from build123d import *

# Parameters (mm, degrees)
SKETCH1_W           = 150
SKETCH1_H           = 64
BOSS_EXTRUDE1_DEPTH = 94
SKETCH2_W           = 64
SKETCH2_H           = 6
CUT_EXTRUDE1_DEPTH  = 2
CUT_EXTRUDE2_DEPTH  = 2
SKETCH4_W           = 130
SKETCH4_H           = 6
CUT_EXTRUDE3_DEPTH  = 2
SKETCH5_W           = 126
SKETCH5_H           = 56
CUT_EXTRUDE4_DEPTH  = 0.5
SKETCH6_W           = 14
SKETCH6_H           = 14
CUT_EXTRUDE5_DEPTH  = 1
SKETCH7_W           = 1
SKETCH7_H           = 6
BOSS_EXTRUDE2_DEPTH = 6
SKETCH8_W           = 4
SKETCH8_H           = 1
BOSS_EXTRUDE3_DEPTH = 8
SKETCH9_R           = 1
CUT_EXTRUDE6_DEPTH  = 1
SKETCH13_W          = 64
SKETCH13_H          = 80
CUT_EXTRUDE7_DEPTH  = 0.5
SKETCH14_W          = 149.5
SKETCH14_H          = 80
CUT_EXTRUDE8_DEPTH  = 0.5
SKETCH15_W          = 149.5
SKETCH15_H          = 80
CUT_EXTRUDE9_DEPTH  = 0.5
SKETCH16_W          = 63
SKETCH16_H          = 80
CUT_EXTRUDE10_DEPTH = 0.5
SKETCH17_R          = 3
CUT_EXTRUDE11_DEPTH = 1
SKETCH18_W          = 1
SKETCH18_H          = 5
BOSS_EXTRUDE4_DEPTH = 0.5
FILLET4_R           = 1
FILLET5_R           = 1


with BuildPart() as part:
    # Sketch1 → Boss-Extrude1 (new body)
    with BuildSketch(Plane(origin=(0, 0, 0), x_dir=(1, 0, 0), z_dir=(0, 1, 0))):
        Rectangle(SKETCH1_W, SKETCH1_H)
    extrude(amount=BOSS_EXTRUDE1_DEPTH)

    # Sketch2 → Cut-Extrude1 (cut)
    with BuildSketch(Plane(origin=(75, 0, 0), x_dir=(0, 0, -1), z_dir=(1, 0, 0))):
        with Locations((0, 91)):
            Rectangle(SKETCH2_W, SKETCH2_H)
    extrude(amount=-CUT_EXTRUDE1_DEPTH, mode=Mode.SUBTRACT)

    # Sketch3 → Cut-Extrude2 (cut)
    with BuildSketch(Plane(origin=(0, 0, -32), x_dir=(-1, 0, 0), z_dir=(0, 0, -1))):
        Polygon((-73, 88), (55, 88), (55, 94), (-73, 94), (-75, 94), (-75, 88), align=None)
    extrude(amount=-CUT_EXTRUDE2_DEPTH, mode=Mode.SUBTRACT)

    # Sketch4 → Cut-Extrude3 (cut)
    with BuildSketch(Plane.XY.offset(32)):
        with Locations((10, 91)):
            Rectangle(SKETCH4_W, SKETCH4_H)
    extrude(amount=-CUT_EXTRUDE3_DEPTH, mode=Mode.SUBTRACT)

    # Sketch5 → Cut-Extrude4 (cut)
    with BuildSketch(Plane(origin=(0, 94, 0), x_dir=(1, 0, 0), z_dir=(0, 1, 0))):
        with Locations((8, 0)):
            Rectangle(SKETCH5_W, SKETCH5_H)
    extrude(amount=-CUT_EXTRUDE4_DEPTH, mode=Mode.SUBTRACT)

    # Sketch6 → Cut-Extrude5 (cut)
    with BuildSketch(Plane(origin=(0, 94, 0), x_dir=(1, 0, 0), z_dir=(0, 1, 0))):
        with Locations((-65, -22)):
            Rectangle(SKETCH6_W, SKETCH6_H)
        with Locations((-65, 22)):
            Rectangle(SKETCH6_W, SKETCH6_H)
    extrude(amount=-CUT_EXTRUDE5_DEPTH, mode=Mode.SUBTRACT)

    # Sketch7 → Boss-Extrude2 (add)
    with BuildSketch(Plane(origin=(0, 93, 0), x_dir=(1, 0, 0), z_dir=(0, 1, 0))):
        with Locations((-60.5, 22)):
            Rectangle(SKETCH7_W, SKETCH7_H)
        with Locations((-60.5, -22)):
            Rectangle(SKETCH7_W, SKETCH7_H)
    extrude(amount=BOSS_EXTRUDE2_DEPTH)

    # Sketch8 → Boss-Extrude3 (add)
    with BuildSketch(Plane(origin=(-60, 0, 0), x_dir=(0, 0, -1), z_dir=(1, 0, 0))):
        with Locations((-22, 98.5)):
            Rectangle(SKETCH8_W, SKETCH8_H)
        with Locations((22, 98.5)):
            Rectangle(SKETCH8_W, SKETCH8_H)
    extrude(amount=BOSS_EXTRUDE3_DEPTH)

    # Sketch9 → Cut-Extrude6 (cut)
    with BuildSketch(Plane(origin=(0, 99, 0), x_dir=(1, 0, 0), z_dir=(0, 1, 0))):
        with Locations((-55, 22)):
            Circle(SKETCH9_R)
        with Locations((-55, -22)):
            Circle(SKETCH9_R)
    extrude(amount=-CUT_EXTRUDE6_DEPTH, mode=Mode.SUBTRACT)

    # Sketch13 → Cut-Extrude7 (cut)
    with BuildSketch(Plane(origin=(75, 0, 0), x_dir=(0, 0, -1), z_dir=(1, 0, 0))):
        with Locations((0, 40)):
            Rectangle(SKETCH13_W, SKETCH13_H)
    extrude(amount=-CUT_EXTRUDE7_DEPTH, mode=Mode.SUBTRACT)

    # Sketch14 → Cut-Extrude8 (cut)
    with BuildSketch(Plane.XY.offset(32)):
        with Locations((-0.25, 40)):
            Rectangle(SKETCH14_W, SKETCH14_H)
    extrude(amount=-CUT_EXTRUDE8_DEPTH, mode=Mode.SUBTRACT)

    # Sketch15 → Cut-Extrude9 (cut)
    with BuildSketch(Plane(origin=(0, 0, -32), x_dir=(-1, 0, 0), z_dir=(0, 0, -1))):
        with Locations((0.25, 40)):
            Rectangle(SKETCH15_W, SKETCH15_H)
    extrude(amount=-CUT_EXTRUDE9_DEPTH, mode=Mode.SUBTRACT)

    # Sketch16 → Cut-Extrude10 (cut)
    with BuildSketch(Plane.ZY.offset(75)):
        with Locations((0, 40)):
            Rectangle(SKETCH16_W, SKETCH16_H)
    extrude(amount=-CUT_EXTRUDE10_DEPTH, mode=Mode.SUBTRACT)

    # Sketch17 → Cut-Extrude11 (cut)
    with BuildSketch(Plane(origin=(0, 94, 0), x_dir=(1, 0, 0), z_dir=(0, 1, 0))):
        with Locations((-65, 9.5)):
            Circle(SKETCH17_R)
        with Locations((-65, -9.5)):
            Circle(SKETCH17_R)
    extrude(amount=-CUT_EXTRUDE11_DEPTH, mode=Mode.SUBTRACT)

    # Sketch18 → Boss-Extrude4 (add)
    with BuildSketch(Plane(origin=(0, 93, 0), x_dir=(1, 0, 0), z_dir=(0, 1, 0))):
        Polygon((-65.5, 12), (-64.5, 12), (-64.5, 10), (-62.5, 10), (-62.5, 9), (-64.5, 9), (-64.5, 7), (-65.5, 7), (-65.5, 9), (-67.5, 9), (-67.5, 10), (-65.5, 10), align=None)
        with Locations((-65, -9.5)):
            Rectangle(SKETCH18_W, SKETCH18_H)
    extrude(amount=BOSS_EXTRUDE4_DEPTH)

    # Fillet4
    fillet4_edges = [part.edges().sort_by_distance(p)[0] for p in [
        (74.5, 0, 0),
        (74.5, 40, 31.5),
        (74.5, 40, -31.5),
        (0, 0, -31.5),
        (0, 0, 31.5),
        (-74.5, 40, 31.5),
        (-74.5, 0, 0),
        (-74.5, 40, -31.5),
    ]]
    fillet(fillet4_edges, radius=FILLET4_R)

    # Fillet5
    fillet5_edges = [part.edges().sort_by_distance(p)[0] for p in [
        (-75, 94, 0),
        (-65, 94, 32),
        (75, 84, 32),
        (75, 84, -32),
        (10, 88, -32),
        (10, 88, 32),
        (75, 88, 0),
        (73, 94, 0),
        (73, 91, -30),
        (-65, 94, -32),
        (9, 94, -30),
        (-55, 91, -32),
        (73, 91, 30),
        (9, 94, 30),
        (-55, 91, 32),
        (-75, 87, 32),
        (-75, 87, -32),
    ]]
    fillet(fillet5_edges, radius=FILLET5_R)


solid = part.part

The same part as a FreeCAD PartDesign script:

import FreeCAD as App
import Part
import Sketcher
from FreeCAD import Vector
Q = App.Units.Quantity


def edges_at(feature, points):
    """Names of the edges that pass closest to the given points."""
    edges = feature.Shape.Edges
    near = lambda p: min(range(len(edges)), key=lambda i: edges[i].distToShape(Part.Vertex(*p))[0])
    return sorted({f"Edge{near(p) + 1}" for p in points})


def add_polygon(sketch, points):
    """Adds a closed chain of lines whose ends are joined by coincident constraints."""
    first, n = sketch.GeometryCount, len(points)
    for a, b in zip(points, points[1:] + points[:1]):
        sketch.addGeometry(Part.LineSegment(App.Vector(*a, 0), App.Vector(*b, 0)), False)
    for i in range(n):
        sketch.addConstraint(Sketcher.Constraint("Coincident", first + i, 2, first + (i + 1) % n, 1))

doc = App.newDocument("Part")
body = doc.addObject("PartDesign::Body", "Body")

sketch1 = doc.addObject("Sketcher::SketchObject", "Sketch")
body.addObject(sketch1)
sketch1.AttachmentSupport = (doc.XZ_Plane, [""])
sketch1.MapMode = "FlatFace"
add_polygon(sketch1, [(-75, -32), (-75, 32), (75, 32), (75, -32)])
sketch1.addConstraint([
    Sketcher.Constraint("Vertical", 0),
    Sketcher.Constraint("Horizontal", 1),
    Sketcher.Constraint("Vertical", 2),
    Sketcher.Constraint("Horizontal", 3),
    Sketcher.Constraint("Symmetric", 0, 2, 2, 2, -1, 1),
    Sketcher.Constraint("DistanceX", 1, 1, 1, 2, Q("150 mm")),
    Sketcher.Constraint("DistanceY", 0, 1, 0, 2, Q("64 mm")),
])
pad1 = doc.addObject("PartDesign::Pad", "Pad")
body.addObject(pad1)
pad1.Profile = sketch1
pad1.Length = 94
pad1.Reversed = True

sketch2 = doc.addObject("Sketcher::SketchObject", "Sketch001")
body.addObject(sketch2)
sketch2.AttachmentSupport = (doc.YZ_Plane, [""])
sketch2.MapMode = "FlatFace"
sketch2.AttachmentOffset = App.Placement(Vector(0, 0, 75), App.Rotation())
add_polygon(sketch2, [(94, 32), (88, 32), (88, -32), (94, -32)])
sketch2.addConstraint([
    Sketcher.Constraint("Horizontal", 0),
    Sketcher.Constraint("Vertical", 1),
    Sketcher.Constraint("Horizontal", 2),
    Sketcher.Constraint("Vertical", 3),
    Sketcher.Constraint("DistanceX", 0, 2, 0, 1, Q("6 mm")),
    Sketcher.Constraint("DistanceY", 1, 2, 1, 1, Q("64 mm")),
    Sketcher.Constraint("DistanceX", -1, 1, 0, 2, Q("88 mm")),
    Sketcher.Constraint("DistanceY", -1, 1, 0, 2, Q("32 mm")),
])
pocket1 = doc.addObject("PartDesign::Pocket", "Pocket")
body.addObject(pocket1)
pocket1.Profile = sketch2
pocket1.Length = 2

sketch3 = doc.addObject("Sketcher::SketchObject", "Sketch002")
body.addObject(sketch3)
sketch3.AttachmentSupport = (doc.XY_Plane, [""])
sketch3.MapMode = "FlatFace"
sketch3.AttachmentOffset = App.Placement(Vector(0, 0, -32), App.Rotation())
add_polygon(sketch3, [(-55, 88), (-55, 94), (75, 94), (75, 88)])
sketch3.addConstraint([
    Sketcher.Constraint("Vertical", 0),
    Sketcher.Constraint("Horizontal", 1),
    Sketcher.Constraint("Vertical", 2),
    Sketcher.Constraint("Horizontal", 3),
    Sketcher.Constraint("DistanceX", 1, 1, 1, 2, Q("130 mm")),
    Sketcher.Constraint("DistanceY", 0, 1, 0, 2, Q("6 mm")),
    Sketcher.Constraint("DistanceX", 0, 2, -1, 1, Q("55 mm")),
    Sketcher.Constraint("DistanceY", -1, 1, 0, 2, Q("94 mm")),
])
pocket2 = doc.addObject("PartDesign::Pocket", "Pocket001")
body.addObject(pocket2)
pocket2.Profile = sketch3
pocket2.Length = 2
pocket2.Reversed = True

sketch4 = doc.addObject("Sketcher::SketchObject", "Sketch003")
body.addObject(sketch4)
sketch4.AttachmentSupport = (doc.XY_Plane, [""])
sketch4.MapMode = "FlatFace"
sketch4.AttachmentOffset = App.Placement(Vector(0, 0, 32), App.Rotation())
add_polygon(sketch4, [(-55, 94), (-55, 88), (75, 88), (75, 94)])
sketch4.addConstraint([
    Sketcher.Constraint("Vertical", 0),
    Sketcher.Constraint("Horizontal", 1),
    Sketcher.Constraint("Vertical", 2),
    Sketcher.Constraint("Horizontal", 3),
    Sketcher.Constraint("DistanceX", 1, 1, 1, 2, Q("130 mm")),
    Sketcher.Constraint("DistanceY", 0, 2, 0, 1, Q("6 mm")),
    Sketcher.Constraint("DistanceX", 0, 2, -1, 1, Q("55 mm")),
    Sketcher.Constraint("DistanceY", -1, 1, 0, 2, Q("88 mm")),
])
pocket3 = doc.addObject("PartDesign::Pocket", "Pocket002")
body.addObject(pocket3)
pocket3.Profile = sketch4
pocket3.Length = 2

sketch5 = doc.addObject("Sketcher::SketchObject", "Sketch004")
body.addObject(sketch5)
sketch5.AttachmentSupport = (doc.XZ_Plane, [""])
sketch5.MapMode = "FlatFace"
sketch5.AttachmentOffset = App.Placement(Vector(0, 0, -94), App.Rotation())
add_polygon(sketch5, [(-55, -28), (-55, 28), (71, 28), (71, -28)])
sketch5.addConstraint([
    Sketcher.Constraint("Vertical", 0),
    Sketcher.Constraint("Horizontal", 1),
    Sketcher.Constraint("Vertical", 2),
    Sketcher.Constraint("Horizontal", 3),
    Sketcher.Constraint("DistanceX", 1, 1, 1, 2, Q("126 mm")),
    Sketcher.Constraint("DistanceY", 0, 1, 0, 2, Q("56 mm")),
    Sketcher.Constraint("DistanceX", 0, 2, -1, 1, Q("55 mm")),
    Sketcher.Constraint("DistanceY", -1, 1, 0, 2, Q("28 mm")),
])
pocket4 = doc.addObject("PartDesign::Pocket", "Pocket003")
body.addObject(pocket4)
pocket4.Profile = sketch5
pocket4.Length = 0.5
pocket4.Reversed = True

sketch6 = doc.addObject("Sketcher::SketchObject", "Sketch005")
body.addObject(sketch6)
sketch6.AttachmentSupport = (doc.XZ_Plane, [""])
sketch6.MapMode = "FlatFace"
sketch6.AttachmentOffset = App.Placement(Vector(0, 0, -94), App.Rotation())
add_polygon(sketch6, [(-72, 15), (-72, 29), (-58, 29), (-58, 15)])
add_polygon(sketch6, [(-72, -29), (-72, -15), (-58, -15), (-58, -29)])
sketch6.addConstraint([
    Sketcher.Constraint("Vertical", 0),
    Sketcher.Constraint("Horizontal", 1),
    Sketcher.Constraint("Vertical", 2),
    Sketcher.Constraint("Horizontal", 3),
    Sketcher.Constraint("Vertical", 4),
    Sketcher.Constraint("Horizontal", 5),
    Sketcher.Constraint("Vertical", 6),
    Sketcher.Constraint("Horizontal", 7),
    Sketcher.Constraint("Symmetric", 3, 2, 4, 2, -1),
    Sketcher.Constraint("Symmetric", 1, 2, 6, 2, -1),
    Sketcher.Constraint("Equal", 7, 0),
    Sketcher.Constraint("DistanceX", 1, 1, 1, 2, Q("14 mm")),
    Sketcher.Constraint("DistanceX", 0, 2, -1, 1, Q("72 mm")),
    Sketcher.Constraint("DistanceY", -1, 1, 0, 2, Q("29 mm")),
])
pocket5 = doc.addObject("PartDesign::Pocket", "Pocket004")
body.addObject(pocket5)
pocket5.Profile = sketch6
pocket5.Length = 1
pocket5.Reversed = True

sketch7 = doc.addObject("Sketcher::SketchObject", "Sketch006")
body.addObject(sketch7)
sketch7.AttachmentSupport = (doc.XZ_Plane, [""])
sketch7.MapMode = "FlatFace"
sketch7.AttachmentOffset = App.Placement(Vector(0, 0, -93), App.Rotation())
add_polygon(sketch7, [(-61, -25), (-61, -19), (-60, -19), (-60, -25)])
add_polygon(sketch7, [(-61, 19), (-61, 25), (-60, 25), (-60, 19)])
sketch7.addConstraint([
    Sketcher.Constraint("Vertical", 0),
    Sketcher.Constraint("Horizontal", 1),
    Sketcher.Constraint("Vertical", 2),
    Sketcher.Constraint("Horizontal", 3),
    Sketcher.Constraint("Vertical", 4),
    Sketcher.Constraint("Horizontal", 5),
    Sketcher.Constraint("Vertical", 6),
    Sketcher.Constraint("Horizontal", 7),
    Sketcher.Constraint("Symmetric", 3, 2, 4, 2, -1),
    Sketcher.Constraint("Symmetric", 1, 2, 6, 2, -1),
    Sketcher.Constraint("DistanceX", 1, 1, 1, 2, Q("1 mm")),
    Sketcher.Constraint("DistanceY", 0, 1, 0, 2, Q("6 mm")),
    Sketcher.Constraint("DistanceX", 0, 2, -1, 1, Q("61 mm")),
    Sketcher.Constraint("DistanceY", 0, 2, -1, 1, Q("19 mm")),
])
pad2 = doc.addObject("PartDesign::Pad", "Pad001")
body.addObject(pad2)
pad2.Profile = sketch7
pad2.Length = 6
pad2.Reversed = True

sketch8 = doc.addObject("Sketcher::SketchObject", "Sketch007")
body.addObject(sketch8)
sketch8.AttachmentSupport = (doc.YZ_Plane, [""])
sketch8.MapMode = "FlatFace"
sketch8.AttachmentOffset = App.Placement(Vector(0, 0, -60), App.Rotation())
add_polygon(sketch8, [(99, 24), (98, 24), (98, 20), (99, 20)])
add_polygon(sketch8, [(99, -20), (98, -20), (98, -24), (99, -24)])
sketch8.addConstraint([
    Sketcher.Constraint("Horizontal", 0),
    Sketcher.Constraint("Vertical", 1),
    Sketcher.Constraint("Horizontal", 2),
    Sketcher.Constraint("Vertical", 3),
    Sketcher.Constraint("Horizontal", 4),
    Sketcher.Constraint("Vertical", 5),
    Sketcher.Constraint("Horizontal", 6),
    Sketcher.Constraint("Vertical", 7),
    Sketcher.Constraint("Symmetric", 1, 2, 4, 2, -1),
    Sketcher.Constraint("Symmetric", 3, 2, 6, 2, -1),
    Sketcher.Constraint("DistanceX", 0, 2, 0, 1, Q("1 mm")),
    Sketcher.Constraint("DistanceY", 1, 2, 1, 1, Q("4 mm")),
    Sketcher.Constraint("DistanceX", -1, 1, 0, 2, Q("98 mm")),
    Sketcher.Constraint("DistanceY", -1, 1, 0, 2, Q("24 mm")),
])
pad3 = doc.addObject("PartDesign::Pad", "Pad002")
body.addObject(pad3)
pad3.Profile = sketch8
pad3.Length = 8

sketch9 = doc.addObject("Sketcher::SketchObject", "Sketch008")
body.addObject(sketch9)
sketch9.AttachmentSupport = (doc.XZ_Plane, [""])
sketch9.MapMode = "FlatFace"
sketch9.AttachmentOffset = App.Placement(Vector(0, 0, -99), App.Rotation())
sketch9.addGeometry([
    Part.Circle(Vector(-55, -22, 0), Vector(0, 0, 1), 1),
    Part.Circle(Vector(-55, 22, 0), Vector(0, 0, 1), 1),
], False)
sketch9.addConstraint([
    Sketcher.Constraint("Equal", 0, 1),
    Sketcher.Constraint("Symmetric", 0, 3, 1, 3, -1),
    Sketcher.Constraint("Diameter", 0, Q("2 mm")),
    Sketcher.Constraint("DistanceX", 0, 3, -1, 1, Q("55 mm")),
    Sketcher.Constraint("DistanceY", 0, 3, -1, 1, Q("22 mm")),
])
pocket6 = doc.addObject("PartDesign::Pocket", "Pocket005")
body.addObject(pocket6)
pocket6.Profile = sketch9
pocket6.Length = 1
pocket6.Reversed = True

sketch10 = doc.addObject("Sketcher::SketchObject", "Sketch009")
body.addObject(sketch10)
sketch10.AttachmentSupport = (doc.YZ_Plane, [""])
sketch10.MapMode = "FlatFace"
sketch10.AttachmentOffset = App.Placement(Vector(0, 0, 75), App.Rotation())
add_polygon(sketch10, [(80, 32), (0, 32), (0, -32), (80, -32)])
sketch10.addConstraint([
    Sketcher.Constraint("Horizontal", 0),
    Sketcher.Constraint("Vertical", 1),
    Sketcher.Constraint("Horizontal", 2),
    Sketcher.Constraint("Vertical", 3),
    Sketcher.Constraint("Symmetric", 0, 2, 1, 2, -1, 1),
    Sketcher.Constraint("DistanceX", 0, 2, 0, 1, Q("80 mm")),
    Sketcher.Constraint("DistanceY", 1, 2, 1, 1, Q("64 mm")),
])
pocket7 = doc.addObject("PartDesign::Pocket", "Pocket006")
body.addObject(pocket7)
pocket7.Profile = sketch10
pocket7.Length = 0.5

sketch11 = doc.addObject("Sketcher::SketchObject", "Sketch010")
body.addObject(sketch11)
sketch11.AttachmentSupport = (doc.XY_Plane, [""])
sketch11.MapMode = "FlatFace"
sketch11.AttachmentOffset = App.Placement(Vector(0, 0, 32), App.Rotation())
add_polygon(sketch11, [(-75, 80), (-75, 0), (74, 0), (74, 80)])
sketch11.addConstraint([
    Sketcher.Constraint("Vertical", 0),
    Sketcher.Constraint("Horizontal", 1),
    Sketcher.Constraint("Vertical", 2),
    Sketcher.Constraint("Horizontal", 3),
    Sketcher.Constraint("PointOnObject", 0, 2, -1),
    Sketcher.Constraint("DistanceY", 0, 2, 0, 1, Q("80 mm")),
    Sketcher.Constraint("DistanceX", 1, 1, 1, 2, Q("149.5 mm")),
    Sketcher.Constraint("DistanceX", 0, 2, -1, 1, Q("75 mm")),
])
pocket8 = doc.addObject("PartDesign::Pocket", "Pocket007")
body.addObject(pocket8)
pocket8.Profile = sketch11
pocket8.Length = 0.5

sketch12 = doc.addObject("Sketcher::SketchObject", "Sketch011")
body.addObject(sketch12)
sketch12.AttachmentSupport = (doc.XY_Plane, [""])
sketch12.MapMode = "FlatFace"
sketch12.AttachmentOffset = App.Placement(Vector(0, 0, -32), App.Rotation())
add_polygon(sketch12, [(74, 80), (74, 0), (-75, 0), (-75, 80)])
sketch12.addConstraint([
    Sketcher.Constraint("Vertical", 0),
    Sketcher.Constraint("Horizontal", 1),
    Sketcher.Constraint("Vertical", 2),
    Sketcher.Constraint("Horizontal", 3),
    Sketcher.Constraint("PointOnObject", 0, 2, -1),
    Sketcher.Constraint("DistanceY", 0, 2, 0, 1, Q("80 mm")),
    Sketcher.Constraint("DistanceX", 1, 2, 1, 1, Q("149.5 mm")),
    Sketcher.Constraint("DistanceX", 1, 2, -1, 1, Q("75 mm")),
])
pocket9 = doc.addObject("PartDesign::Pocket", "Pocket008")
body.addObject(pocket9)
pocket9.Profile = sketch12
pocket9.Length = 0.5
pocket9.Reversed = True

sketch13 = doc.addObject("Sketcher::SketchObject", "Sketch012")
body.addObject(sketch13)
sketch13.AttachmentSupport = (doc.YZ_Plane, [""])
sketch13.MapMode = "FlatFace"
sketch13.AttachmentOffset = App.Placement(Vector(0, 0, -75), App.Rotation())
add_polygon(sketch13, [(80, -32), (0, -32), (0, 32), (80, 32)])
sketch13.addConstraint([
    Sketcher.Constraint("Horizontal", 0),
    Sketcher.Constraint("Vertical", 1),
    Sketcher.Constraint("Horizontal", 2),
    Sketcher.Constraint("Vertical", 3),
    Sketcher.Constraint("Symmetric", 0, 2, 1, 2, -1, 1),
    Sketcher.Constraint("DistanceX", 0, 2, 0, 1, Q("80 mm")),
    Sketcher.Constraint("DistanceY", 1, 1, 1, 2, Q("63 mm")),
])
pocket10 = doc.addObject("PartDesign::Pocket", "Pocket009")
body.addObject(pocket10)
pocket10.Profile = sketch13
pocket10.Length = 0.5
pocket10.Reversed = True

sketch14 = doc.addObject("Sketcher::SketchObject", "Sketch013")
body.addObject(sketch14)
sketch14.AttachmentSupport = (doc.XZ_Plane, [""])
sketch14.MapMode = "FlatFace"
sketch14.AttachmentOffset = App.Placement(Vector(0, 0, -94), App.Rotation())
sketch14.addGeometry([
    Part.Circle(Vector(-65, -9.5, 0), Vector(0, 0, 1), 3),
    Part.Circle(Vector(-65, 9.5, 0), Vector(0, 0, 1), 3),
], False)
sketch14.addConstraint([
    Sketcher.Constraint("Equal", 0, 1),
    Sketcher.Constraint("Symmetric", 0, 3, 1, 3, -1),
    Sketcher.Constraint("Diameter", 0, Q("6 mm")),
    Sketcher.Constraint("DistanceX", 0, 3, -1, 1, Q("65 mm")),
    Sketcher.Constraint("DistanceY", 0, 3, 1, 3, Q("19 mm")),
])
pocket11 = doc.addObject("PartDesign::Pocket", "Pocket010")
body.addObject(pocket11)
pocket11.Profile = sketch14
pocket11.Length = 1
pocket11.Reversed = True

sketch15 = doc.addObject("Sketcher::SketchObject", "Sketch014")
body.addObject(sketch15)
sketch15.AttachmentSupport = (doc.XZ_Plane, [""])
sketch15.MapMode = "FlatFace"
sketch15.AttachmentOffset = App.Placement(Vector(0, 0, -93), App.Rotation())
add_polygon(sketch15, [(-64.5, -12), (-65.5, -12), (-65.5, -10), (-67.5, -10), (-67.5, -9), (-65.5, -9), (-65.5, -7), (-64.5, -7), (-64.5, -9), (-62.5, -9), (-62.5, -10), (-64.5, -10)])
add_polygon(sketch15, [(-65.5, 7), (-65.5, 12), (-64.5, 12), (-64.5, 7)])
sketch15.addConstraint([
    Sketcher.Constraint("Horizontal", 0),
    Sketcher.Constraint("Vertical", 1),
    Sketcher.Constraint("Horizontal", 2),
    Sketcher.Constraint("Vertical", 3),
    Sketcher.Constraint("Horizontal", 4),
    Sketcher.Constraint("Vertical", 5),
    Sketcher.Constraint("Horizontal", 6),
    Sketcher.Constraint("Vertical", 7),
    Sketcher.Constraint("Horizontal", 8),
    Sketcher.Constraint("Vertical", 9),
    Sketcher.Constraint("Horizontal", 10),
    Sketcher.Constraint("Vertical", 11),
    Sketcher.Constraint("Vertical", 12),
    Sketcher.Constraint("Horizontal", 13),
    Sketcher.Constraint("Vertical", 14),
    Sketcher.Constraint("Horizontal", 15),
    Sketcher.Constraint("Symmetric", 0, 2, 12, 2, -1),
    Sketcher.Constraint("Symmetric", 6, 2, 14, 2, -1),
    Sketcher.Constraint("Horizontal", 4, 2, 7, 2),
    Sketcher.Constraint("Horizontal", 2, 2, 9, 2),
    Sketcher.Constraint("Vertical", 1, 2, 4, 2),
    Sketcher.Constraint("Vertical", 7, 2, 10, 2),
    Sketcher.Constraint("Equal", 4, 8),
    Sketcher.Constraint("Equal", 10, 1),
    Sketcher.Constraint("Equal", 15, 3),
    Sketcher.Constraint("Equal", 1, 5),
    Sketcher.Constraint("DistanceX", 0, 2, 0, 1, Q("1 mm")),
    Sketcher.Constraint("DistanceX", 2, 2, 2, 1, Q("2 mm")),
    Sketcher.Constraint("DistanceY", 0, 2, -1, 1, Q("12 mm")),
    Sketcher.Constraint("DistanceX", 0, 2, -1, 1, Q("65.5 mm")),
])
pad4 = doc.addObject("PartDesign::Pad", "Pad003")
body.addObject(pad4)
pad4.Profile = sketch15
pad4.Length = 0.5
pad4.Reversed = True
doc.recompute()

fillet = doc.addObject("PartDesign::Fillet", "Fillet")
body.addObject(fillet)
fillet.Base = (pad4, edges_at(pad4, [
    (74.5, 0, 0),
    (74.5, 40, 31.5),
    (74.5, 40, -31.5),
    (0, 0, -31.5),
    (0, 0, 31.5),
    (-74.5, 40, 31.5),
    (-74.5, 0, 0),
    (-74.5, 40, -31.5),
]))
fillet.Radius = 1
doc.recompute()

fillet2 = doc.addObject("PartDesign::Fillet", "Fillet001")
body.addObject(fillet2)
fillet2.Base = (fillet, edges_at(fillet, [
    (-75, 94, 0),
    (-65, 94, 32),
    (75, 84, 32),
    (75, 84, -32),
    (10, 88, -32),
    (10, 88, 32),
    (75, 88, 0),
    (73, 94, 0),
    (73, 91, -30),
    (-65, 94, -32),
    (9, 94, -30),
    (-55, 91, -32),
    (73, 91, 30),
    (9, 94, 30),
    (-55, 91, 32),
    (-75, 87, 32),
    (-75, 87, -32),
]))
fillet2.Radius = 1

doc.recompute()
